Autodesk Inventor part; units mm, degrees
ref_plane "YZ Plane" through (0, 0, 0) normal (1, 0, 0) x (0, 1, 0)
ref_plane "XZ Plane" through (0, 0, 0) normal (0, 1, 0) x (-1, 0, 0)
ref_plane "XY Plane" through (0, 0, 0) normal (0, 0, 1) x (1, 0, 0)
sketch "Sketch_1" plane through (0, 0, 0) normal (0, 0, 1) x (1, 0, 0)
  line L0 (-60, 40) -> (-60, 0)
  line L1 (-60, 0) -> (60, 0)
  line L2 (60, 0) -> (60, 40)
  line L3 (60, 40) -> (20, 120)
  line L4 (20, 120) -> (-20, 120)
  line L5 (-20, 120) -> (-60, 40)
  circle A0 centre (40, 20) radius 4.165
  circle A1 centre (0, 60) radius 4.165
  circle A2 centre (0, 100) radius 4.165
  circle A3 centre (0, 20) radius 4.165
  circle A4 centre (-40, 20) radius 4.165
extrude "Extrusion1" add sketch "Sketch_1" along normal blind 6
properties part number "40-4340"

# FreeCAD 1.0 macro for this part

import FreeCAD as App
import Part
import Sketcher
from FreeCAD import Vector
Q = App.Units.Quantity


def add_polygon(sketch, points):
    """Adds a closed chain of lines whose ends are joined by coincident constraints."""
    first, n = sketch.GeometryCount, len(points)
    for a, b in zip(points, points[1:] + points[:1]):
        sketch.addGeometry(Part.LineSegment(App.Vector(*a, 0), App.Vector(*b, 0)), False)
    for i in range(n):
        sketch.addConstraint(Sketcher.Constraint("Coincident", first + i, 2, first + (i + 1) % n, 1))

doc = App.newDocument("Part")
body = doc.addObject("PartDesign::Body", "Body")

sketch1 = doc.addObject("Sketcher::SketchObject", "Sketch")
body.addObject(sketch1)
sketch1.AttachmentSupport = (doc.XY_Plane, [""])
sketch1.MapMode = "FlatFace"
add_polygon(sketch1, [(-20, 120), (-60, 40), (-60, 0), (60, 0), (60, 40), (20, 120)])
sketch1.addGeometry(Part.Circle(Vector(-40, 20, 0), Vector(0, 0, 1), 4.2), False)
sketch1.addGeometry(Part.Circle(Vector(0, 20, 0), Vector(0, 0, 1), 4.2), False)
sketch1.addGeometry(Part.Circle(Vector(40, 20, 0), Vector(0, 0, 1), 4.2), False)
sketch1.addGeometry(Part.Circle(Vector(0, 60, 0), Vector(0, 0, 1), 4.2), False)
sketch1.addGeometry(Part.Circle(Vector(0, 100, 0), Vector(0, 0, 1), 4.2), False)
sketch1.addConstraint(Sketcher.Constraint("Vertical", 1))
sketch1.addConstraint(Sketcher.Constraint("Horizontal", 2))
sketch1.addConstraint(Sketcher.Constraint("Vertical", 3))
sketch1.addConstraint(Sketcher.Constraint("Horizontal", 5))
sketch1.addConstraint(Sketcher.Constraint("Equal", 6, 7))
sketch1.addConstraint(Sketcher.Constraint("Equal", 7, 8))
sketch1.addConstraint(Sketcher.Constraint("Equal", 8, 9))
sketch1.addConstraint(Sketcher.Constraint("Equal", 9, 10))
sketch1.addConstraint(Sketcher.Constraint("Symmetric", 1, 2, 2, 2, -1, 1))
sketch1.addConstraint(Sketcher.Constraint("Symmetric", 6, 3, 8, 3, -2))
sketch1.addConstraint(Sketcher.Constraint("PointOnObject", 7, 3, -2))
sketch1.addConstraint(Sketcher.Constraint("PointOnObject", 9, 3, -2))
sketch1.addConstraint(Sketcher.Constraint("PointOnObject", 10, 3, -2))
sketch1.addConstraint(Sketcher.Constraint("Horizontal", 6, 3, 7, 3))
sketch1.addConstraint(Sketcher.Constraint("Horizontal", 0, 2, 3, 2))
sketch1.addConstraint(Sketcher.Constraint("Equal", 5, 1))
sketch1.addConstraint(Sketcher.Constraint("Equal", 0, 4))
sketch1.addConstraint(Sketcher.Constraint("Diameter", 6, Q("8.33 mm")))
sketch1.addConstraint(Sketcher.Constraint("DistanceX", 2, 1, 2, 2, Q("120 mm")))
sketch1.addConstraint(Sketcher.Constraint("DistanceX", 5, 2, 5, 1, Q("40 mm")))
sketch1.addConstraint(Sketcher.Constraint("DistanceX", 6, 3, -1, 1, Q("40 mm")))
sketch1.addConstraint(Sketcher.Constraint("DistanceY", -1, 1, 6, 3, Q("20 mm")))
sketch1.addConstraint(Sketcher.Constraint("DistanceY", -1, 1, 9, 3, Q("60 mm")))
sketch1.addConstraint(Sketcher.Constraint("DistanceY", -1, 1, 10, 3, Q("100 mm")))
sketch1.addConstraint(Sketcher.Constraint("DistanceY", -1, 1, 4, 2, Q("120 mm")))
pad1 = doc.addObject("PartDesign::Pad", "Pad")
body.addObject(pad1)
pad1.Profile = sketch1
pad1.Length = 6

doc.recompute()
